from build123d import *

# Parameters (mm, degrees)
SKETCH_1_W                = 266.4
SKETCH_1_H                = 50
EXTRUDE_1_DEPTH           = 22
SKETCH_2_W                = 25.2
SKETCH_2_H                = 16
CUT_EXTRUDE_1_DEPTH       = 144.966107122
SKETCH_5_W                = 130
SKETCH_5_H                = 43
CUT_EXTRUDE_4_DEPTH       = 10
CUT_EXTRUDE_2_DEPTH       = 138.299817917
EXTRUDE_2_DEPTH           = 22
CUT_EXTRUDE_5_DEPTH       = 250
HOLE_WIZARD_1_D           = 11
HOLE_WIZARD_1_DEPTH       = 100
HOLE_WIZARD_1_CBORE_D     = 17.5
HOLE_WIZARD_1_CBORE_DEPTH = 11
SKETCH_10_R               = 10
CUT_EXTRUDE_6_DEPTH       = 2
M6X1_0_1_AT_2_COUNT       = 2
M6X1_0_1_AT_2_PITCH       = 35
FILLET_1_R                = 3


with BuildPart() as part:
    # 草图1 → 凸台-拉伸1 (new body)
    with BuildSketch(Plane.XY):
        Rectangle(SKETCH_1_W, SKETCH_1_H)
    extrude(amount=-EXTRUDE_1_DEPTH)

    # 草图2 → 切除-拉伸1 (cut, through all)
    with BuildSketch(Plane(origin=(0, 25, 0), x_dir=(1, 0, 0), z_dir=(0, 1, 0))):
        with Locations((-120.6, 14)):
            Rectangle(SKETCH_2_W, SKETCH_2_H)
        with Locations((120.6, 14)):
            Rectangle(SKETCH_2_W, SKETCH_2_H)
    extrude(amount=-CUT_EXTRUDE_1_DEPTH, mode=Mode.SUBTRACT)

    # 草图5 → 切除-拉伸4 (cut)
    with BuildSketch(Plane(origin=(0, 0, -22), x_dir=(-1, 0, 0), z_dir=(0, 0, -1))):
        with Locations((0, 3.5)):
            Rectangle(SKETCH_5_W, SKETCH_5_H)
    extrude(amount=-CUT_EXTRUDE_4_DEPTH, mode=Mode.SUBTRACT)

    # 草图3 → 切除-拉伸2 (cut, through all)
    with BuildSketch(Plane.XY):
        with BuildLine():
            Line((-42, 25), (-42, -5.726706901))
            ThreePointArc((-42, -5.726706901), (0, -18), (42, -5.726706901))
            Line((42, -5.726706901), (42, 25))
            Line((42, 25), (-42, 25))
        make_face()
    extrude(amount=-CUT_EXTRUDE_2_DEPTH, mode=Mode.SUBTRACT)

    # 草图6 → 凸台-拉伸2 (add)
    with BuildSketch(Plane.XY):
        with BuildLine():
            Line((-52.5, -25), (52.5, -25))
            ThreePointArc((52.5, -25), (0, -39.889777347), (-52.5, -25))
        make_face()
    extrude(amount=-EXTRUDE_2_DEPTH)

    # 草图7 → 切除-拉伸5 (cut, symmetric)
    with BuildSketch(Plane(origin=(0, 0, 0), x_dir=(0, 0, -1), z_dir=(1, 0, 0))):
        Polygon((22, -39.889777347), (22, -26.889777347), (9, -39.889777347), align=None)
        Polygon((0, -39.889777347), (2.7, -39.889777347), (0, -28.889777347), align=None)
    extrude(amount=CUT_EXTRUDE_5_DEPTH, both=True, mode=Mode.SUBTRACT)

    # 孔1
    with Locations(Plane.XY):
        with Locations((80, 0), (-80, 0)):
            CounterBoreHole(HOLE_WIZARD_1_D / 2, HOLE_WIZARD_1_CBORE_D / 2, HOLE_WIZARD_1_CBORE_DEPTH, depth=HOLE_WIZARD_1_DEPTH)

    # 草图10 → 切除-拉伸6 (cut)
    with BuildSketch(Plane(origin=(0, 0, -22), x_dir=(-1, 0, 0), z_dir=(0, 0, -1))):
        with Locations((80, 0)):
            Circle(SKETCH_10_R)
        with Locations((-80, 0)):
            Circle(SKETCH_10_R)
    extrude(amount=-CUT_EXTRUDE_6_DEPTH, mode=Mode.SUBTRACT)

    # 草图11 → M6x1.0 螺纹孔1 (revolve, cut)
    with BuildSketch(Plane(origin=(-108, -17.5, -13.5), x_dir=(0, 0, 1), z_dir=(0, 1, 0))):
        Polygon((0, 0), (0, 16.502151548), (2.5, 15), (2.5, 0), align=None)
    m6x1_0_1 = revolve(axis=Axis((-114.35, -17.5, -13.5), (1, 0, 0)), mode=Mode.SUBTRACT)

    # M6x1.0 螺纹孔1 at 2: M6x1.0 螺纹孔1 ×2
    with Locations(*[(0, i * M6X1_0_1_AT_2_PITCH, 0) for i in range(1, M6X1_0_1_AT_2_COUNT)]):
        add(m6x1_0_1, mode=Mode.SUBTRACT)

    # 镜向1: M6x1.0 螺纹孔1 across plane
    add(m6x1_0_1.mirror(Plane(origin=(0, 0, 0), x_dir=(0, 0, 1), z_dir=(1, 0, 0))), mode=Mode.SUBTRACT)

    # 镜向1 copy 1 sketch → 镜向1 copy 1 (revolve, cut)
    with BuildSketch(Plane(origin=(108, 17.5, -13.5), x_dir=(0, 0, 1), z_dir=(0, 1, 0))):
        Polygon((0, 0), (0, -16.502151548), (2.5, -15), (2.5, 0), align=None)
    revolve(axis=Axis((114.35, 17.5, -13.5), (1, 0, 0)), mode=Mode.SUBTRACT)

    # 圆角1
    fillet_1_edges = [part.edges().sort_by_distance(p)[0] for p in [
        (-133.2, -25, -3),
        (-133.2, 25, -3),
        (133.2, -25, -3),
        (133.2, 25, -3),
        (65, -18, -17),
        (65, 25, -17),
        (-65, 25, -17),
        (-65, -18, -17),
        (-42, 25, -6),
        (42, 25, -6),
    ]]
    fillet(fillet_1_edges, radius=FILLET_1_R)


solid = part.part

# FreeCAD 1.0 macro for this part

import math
import FreeCAD as App
import Part
import Sketcher
from FreeCAD import Vector
Q = App.Units.Quantity


def edges_at(feature, points):
    """Names of the edges that pass closest to the given points."""
    edges = feature.Shape.Edges
    near = lambda p: min(range(len(edges)), key=lambda i: edges[i].distToShape(Part.Vertex(*p))[0])
    return sorted({f"Edge{near(p) + 1}" for p in points})

doc = App.newDocument("Part")
params = doc.addObject("Spreadsheet::Sheet", "Params")
for row, (alias, value) in enumerate([
    ("sketch1_height", "50 mm"),
    ("sketch1_width", "266.4 mm"),
    ("pad1_length", "22 mm"),
    ("sketch2_height", "16 mm"),
    ("sketch2_width", "25.2 mm"),
    ("sketch3_width", "130 mm"),
    ("sketch3_height", "43 mm"),
    ("pocket2_length", "10 mm"),
    ("sketch4_radius", "78 mm"),
    ("sketch4_width", "84 mm"),
    ("sketch5_radius", "100 mm"),
    ("sketch5_width", "105 mm"),
    ("pad2_length", "22 mm"),
    ("sketch6_width", "13 mm"),
    ("sketch6_width2", "11 mm"),
    ("sketch6_height", "2.7 mm"),
    ("pocket4_length", "500 mm"),
    ("sketch7_diameter", "11 mm"),
    ("hole_diameter", "11 mm"),
    ("hole_depth", "100 mm"),
    ("hole_cbore_diameter", "17.5 mm"),
    ("hole_cbore_depth", "11 mm"),
    ("sketch8_diameter", "20 mm"),
    ("pocket5_length", "2 mm"),
    ("sketch9_width", "15 mm"),
    ("sketch9_height", "2.5 mm"),
    ("groove_angle", "360 deg"),
    ("linearpattern_pitch", "35 mm"),
    ("sketch10_width", "15 mm"),
    ("sketch10_height", "2.5 mm"),
    ("groove2_angle", "360 deg"),
    ("fillet_radius", "3 mm"),
], start=1):
    params.set(f"A{row}", alias)
    params.set(f"B{row}", "=" + value)
    params.setAlias(f"B{row}", alias)

body = doc.addObject("PartDesign::Body", "Body")

# Sketch on XY plane
sketch1 = body.newObject("Sketcher::SketchObject", "Sketch")
sketch1.AttachmentSupport = (doc.getObject("XY_Plane"), [""])
sketch1.MapMode = "FlatFace"
sketch1.addGeometry(Part.LineSegment(Vector(-133, 25, 0), Vector(-133, -25, 0)), False)
sketch1.addGeometry(Part.LineSegment(Vector(-133, -25, 0), Vector(133, -25, 0)), False)
sketch1.addGeometry(Part.LineSegment(Vector(133, -25, 0), Vector(133, 25, 0)), False)
sketch1.addGeometry(Part.LineSegment(Vector(133, 25, 0), Vector(-133, 25, 0)), False)
sketch1.addConstraint(Sketcher.Constraint("Coincident", 0, 2, 1, 1))
sketch1.addConstraint(Sketcher.Constraint("Coincident", 1, 2, 2, 1))
sketch1.addConstraint(Sketcher.Constraint("Coincident", 2, 2, 3, 1))
sketch1.addConstraint(Sketcher.Constraint("Coincident", 3, 2, 0, 1))
sketch1.addConstraint(Sketcher.Constraint("Vertical", 0))
sketch1.addConstraint(Sketcher.Constraint("Horizontal", 1))
sketch1.addConstraint(Sketcher.Constraint("Vertical", 2))
sketch1.addConstraint(Sketcher.Constraint("Horizontal", 3))
sketch1.addConstraint(Sketcher.Constraint("Symmetric", 0, 2, 2, 2, -1, 1))
sketch1.addConstraint(Sketcher.Constraint("DistanceY", 0, 2, 0, 1, 50.0))
sketch1.addConstraint(Sketcher.Constraint("DistanceX", 1, 1, 1, 2, 266.4))
sketch1.setExpression("Constraints[9]", "Params.sketch1_height")
sketch1.setExpression("Constraints[10]", "Params.sketch1_width")
pad1 = body.newObject("PartDesign::Pad", "Pad")
pad1.Profile = sketch1
pad1.setExpression("Length", "Params.pad1_length")
pad1.Reversed = True

# Sketch on XZ plane
sketch2 = body.newObject("Sketcher::SketchObject", "Sketch001")
sketch2.AttachmentSupport = (doc.getObject("XZ_Plane"), [""])
sketch2.MapMode = "FlatFace"
sketch2.AttachmentOffset = App.Placement(Vector(0, 0, -25), App.Rotation())
sketch2.addGeometry(Part.LineSegment(Vector(-133, -22, 0), Vector(-133, -6, 0)), False)
sketch2.addGeometry(Part.LineSegment(Vector(-133, -6, 0), Vector(-108, -6, 0)), False)
sketch2.addGeometry(Part.LineSegment(Vector(-108, -6, 0), Vector(-108, -22, 0)), False)
sketch2.addGeometry(Part.LineSegment(Vector(-108, -22, 0), Vector(-133, -22, 0)), False)
sketch2.addGeometry(Part.LineSegment(Vector(108, -22, 0), Vector(108, -6, 0)), False)
sketch2.addGeometry(Part.LineSegment(Vector(108, -6, 0), Vector(133, -6, 0)), False)
sketch2.addGeometry(Part.LineSegment(Vector(133, -6, 0), Vector(133, -22, 0)), False)
sketch2.addGeometry(Part.LineSegment(Vector(133, -22, 0), Vector(108, -22, 0)), False)
sketch2.addConstraint(Sketcher.Constraint("Coincident", 0, 2, 1, 1))
sketch2.addConstraint(Sketcher.Constraint("Coincident", 1, 2, 2, 1))
sketch2.addConstraint(Sketcher.Constraint("Coincident", 2, 2, 3, 1))
sketch2.addConstraint(Sketcher.Constraint("Coincident", 3, 2, 0, 1))
sketch2.addConstraint(Sketcher.Constraint("Coincident", 4, 2, 5, 1))
sketch2.addConstraint(Sketcher.Constraint("Coincident", 5, 2, 6, 1))
sketch2.addConstraint(Sketcher.Constraint("Coincident", 6, 2, 7, 1))
sketch2.addConstraint(Sketcher.Constraint("Coincident", 7, 2, 4, 1))
sketch2.addConstraint(Sketcher.Constraint("Vertical", 0))
sketch2.addConstraint(Sketcher.Constraint("Horizontal", 1))
sketch2.addConstraint(Sketcher.Constraint("Vertical", 2))
sketch2.addConstraint(Sketcher.Constraint("Horizontal", 3))
sketch2.addConstraint(Sketcher.Constraint("Vertical", 4))
sketch2.addConstraint(Sketcher.Constraint("Horizontal", 5))
sketch2.addConstraint(Sketcher.Constraint("Vertical", 6))
sketch2.addConstraint(Sketcher.Constraint("Horizontal", 7))
sketch2.addConstraint(Sketcher.Constraint("Symmetric", 1, 2, 4, 2, -2))
sketch2.addConstraint(Sketcher.Constraint("Symmetric", 3, 2, 6, 2, -2))
sketch2.addConstraint(Sketcher.Constraint("DistanceY", 0, 1, 0, 2, 16.0))
sketch2.addConstraint(Sketcher.Constraint("DistanceX", 1, 1, 1, 2, 25.2))
sketch2.addConstraint(Sketcher.Constraint("DistanceY", 0, 2, -1, 1, 6.0))
sketch2.addConstraint(Sketcher.Constraint("DistanceX", 1, 2, -1, 1, 108.0))
sketch2.setExpression("Constraints[18]", "Params.sketch2_height")
sketch2.setExpression("Constraints[19]", "Params.sketch2_width")
pocket1 = body.newObject("PartDesign::Pocket", "Pocket")
pocket1.Profile = sketch2
pocket1.Type = "ThroughAll"
pocket1.Reversed = True

# Sketch on XY plane
sketch3 = body.newObject("Sketcher::SketchObject", "Sketch002")
sketch3.AttachmentSupport = (doc.getObject("XY_Plane"), [""])
sketch3.MapMode = "FlatFace"
sketch3.AttachmentOffset = App.Placement(Vector(0, 0, -22), App.Rotation())
sketch3.addGeometry(Part.LineSegment(Vector(65, 25, 0), Vector(65, -18, 0)), False)
sketch3.addGeometry(Part.LineSegment(Vector(65, -18, 0), Vector(-65, -18, 0)), False)
sketch3.addGeometry(Part.LineSegment(Vector(-65, -18, 0), Vector(-65, 25, 0)), False)
sketch3.addGeometry(Part.LineSegment(Vector(-65, 25, 0), Vector(65, 25, 0)), False)
sketch3.addConstraint(Sketcher.Constraint("Coincident", 0, 2, 1, 1))
sketch3.addConstraint(Sketcher.Constraint("Coincident", 1, 2, 2, 1))
sketch3.addConstraint(Sketcher.Constraint("Coincident", 2, 2, 3, 1))
sketch3.addConstraint(Sketcher.Constraint("Coincident", 3, 2, 0, 1))
sketch3.addConstraint(Sketcher.Constraint("Vertical", 0))
sketch3.addConstraint(Sketcher.Constraint("Horizontal", 1))
sketch3.addConstraint(Sketcher.Constraint("Vertical", 2))
sketch3.addConstraint(Sketcher.Constraint("Horizontal", 3))
sketch3.addConstraint(Sketcher.Constraint("DistanceX", 1, 2, 1, 1, 130.0))
sketch3.addConstraint(Sketcher.Constraint("DistanceY", 0, 2, 0, 1, 43.0))
sketch3.addConstraint(Sketcher.Constraint("DistanceX", -1, 1, 0, 2, 65.0))
sketch3.addConstraint(Sketcher.Constraint("DistanceY", 0, 2, -1, 1, 18.0))
sketch3.setExpression("Constraints[8]", "Params.sketch3_width")
sketch3.setExpression("Constraints[9]", "Params.sketch3_height")
pocket2 = body.newObject("PartDesign::Pocket", "Pocket001")
pocket2.Profile = sketch3
pocket2.setExpression("Length", "Params.pocket2_length")
pocket2.Reversed = True

# Sketch on XY plane
sketch4 = body.newObject("Sketcher::SketchObject", "Sketch003")
sketch4.AttachmentSupport = (doc.getObject("XY_Plane"), [""])
sketch4.MapMode = "FlatFace"
sketch4.addGeometry(Part.LineSegment(Vector(-42, 25, 0), Vector(-42, -6, 0)), False)
sketch4.addGeometry(Part.ArcOfCircle(Part.Circle(Vector(0, 60, 0), Vector(0, 0, 1), 78), math.radians(-123), math.radians(-57)), False)
sketch4.addGeometry(Part.LineSegment(Vector(42, -6, 0), Vector(42, 25, 0)), False)
sketch4.addGeometry(Part.LineSegment(Vector(42, 25, 0), Vector(-42, 25, 0)), False)
sketch4.addConstraint(Sketcher.Constraint("Coincident", 0, 2, 1, 1))
sketch4.addConstraint(Sketcher.Constraint("Coincident", 1, 2, 2, 1))
sketch4.addConstraint(Sketcher.Constraint("Coincident", 2, 2, 3, 1))
sketch4.addConstraint(Sketcher.Constraint("Coincident", 3, 2, 0, 1))
sketch4.addConstraint(Sketcher.Constraint("Vertical", 0))
sketch4.addConstraint(Sketcher.Constraint("Vertical", 2))
sketch4.addConstraint(Sketcher.Constraint("Horizontal", 3))
sketch4.addConstraint(Sketcher.Constraint("Symmetric", 0, 2, 1, 2, -2))
sketch4.addConstraint(Sketcher.Constraint("Radius", 1, 78.0))
sketch4.addConstraint(Sketcher.Constraint("DistanceX", 3, 2, 3, 1, 84.0))
sketch4.addConstraint(Sketcher.Constraint("DistanceY", -1, 1, 1, 3, 60.0))
sketch4.addConstraint(Sketcher.Constraint("DistanceY", -1, 1, 2, 2, 25.0))
sketch4.setExpression("Constraints[8]", "Params.sketch4_radius")
sketch4.setExpression("Constraints[9]", "Params.sketch4_width")
pocket3 = body.newObject("PartDesign::Pocket", "Pocket002")
pocket3.Profile = sketch4
pocket3.Type = "ThroughAll"

# Sketch on XY plane
sketch5 = body.newObject("Sketcher::SketchObject", "Sketch004")
sketch5.AttachmentSupport = (doc.getObject("XY_Plane"), [""])
sketch5.MapMode = "FlatFace"
sketch5.addGeometry(Part.LineSegment(Vector(52, -25, 0), Vector(-52, -25, 0)), False)
sketch5.addGeometry(Part.ArcOfCircle(Part.Circle(Vector(0, 60, 0), Vector(0, 0, 1), 100), math.radians(-122), math.radians(-58)), False)
sketch5.addConstraint(Sketcher.Constraint("Coincident", 0, 1, 1, 2))
sketch5.addConstraint(Sketcher.Constraint("Coincident", 1, 1, 0, 2))
sketch5.addConstraint(Sketcher.Constraint("Horizontal", 0))
sketch5.addConstraint(Sketcher.Constraint("PointOnObject", 1, 3, -2))
sketch5.addConstraint(Sketcher.Constraint("Radius", 1, 100.0))
sketch5.addConstraint(Sketcher.Constraint("DistanceX", 0, 2, 0, 1, 105.0))
sketch5.addConstraint(Sketcher.Constraint("DistanceY", 0, 1, -1, 1, 25.0))
sketch5.setExpression("Constraints[4]", "Params.sketch5_radius")
sketch5.setExpression("Constraints[5]", "Params.sketch5_width")
pad2 = body.newObject("PartDesign::Pad", "Pad001")
pad2.Profile = sketch5
pad2.setExpression("Length", "Params.pad2_length")
pad2.Reversed = True

# Sketch on YZ plane
sketch6 = body.newObject("Sketcher::SketchObject", "Sketch005")
sketch6.AttachmentSupport = (doc.getObject("YZ_Plane"), [""])
sketch6.MapMode = "FlatFace"
sketch6.addGeometry(Part.LineSegment(Vector(-39.9, -22, 0), Vector(-26.9, -22, 0)), False)
sketch6.addGeometry(Part.LineSegment(Vector(-26.9, -22, 0), Vector(-39.9, -9, 0)), False)
sketch6.addGeometry(Part.LineSegment(Vector(-39.9, -9, 0), Vector(-39.9, -22, 0)), False)
sketch6.addGeometry(Part.LineSegment(Vector(-39.9, 0, 0), Vector(-39.9, -2.7, 0)), False)
sketch6.addGeometry(Part.LineSegment(Vector(-39.9, -2.7, 0), Vector(-28.9, 0, 0)), False)
sketch6.addGeometry(Part.LineSegment(Vector(-28.9, 0, 0), Vector(-39.9, 0, 0)), False)
sketch6.addConstraint(Sketcher.Constraint("Coincident", 0, 2, 1, 1))
sketch6.addConstraint(Sketcher.Constraint("Coincident", 1, 2, 2, 1))
sketch6.addConstraint(Sketcher.Constraint("Coincident", 2, 2, 0, 1))
sketch6.addConstraint(Sketcher.Constraint("Coincident", 3, 2, 4, 1))
sketch6.addConstraint(Sketcher.Constraint("Coincident", 4, 2, 5, 1))
sketch6.addConstraint(Sketcher.Constraint("Coincident", 5, 2, 3, 1))
sketch6.addConstraint(Sketcher.Constraint("Horizontal", 0))
sketch6.addConstraint(Sketcher.Constraint("Vertical", 2))
sketch6.addConstraint(Sketcher.Constraint("Vertical", 3))
sketch6.addConstraint(Sketcher.Constraint("Horizontal", 5))
sketch6.addConstraint(Sketcher.Constraint("PointOnObject", 4, 2, -1))
sketch6.addConstraint(Sketcher.Constraint("Vertical", 2, 2, 3, 2))
sketch6.addConstraint(Sketcher.Constraint("Equal", 0, 2))
sketch6.addConstraint(Sketcher.Constraint("DistanceX", 0, 1, 0, 2, 13.0))
sketch6.addConstraint(Sketcher.Constraint("DistanceX", 5, 2, 5, 1, 11.0))
sketch6.addConstraint(Sketcher.Constraint("DistanceY", 3, 2, 3, 1, 2.7))
sketch6.addConstraint(Sketcher.Constraint("DistanceY", 0, 2, -1, 1, 22.0))
sketch6.addConstraint(Sketcher.Constraint("DistanceX", 0, 2, -1, 1, 26.889777))
sketch6.setExpression("Constraints[13]", "Params.sketch6_width")
sketch6.setExpression("Constraints[14]", "Params.sketch6_width2")
sketch6.setExpression("Constraints[15]", "Params.sketch6_height")
pocket4 = body.newObject("PartDesign::Pocket", "Pocket003")
pocket4.Profile = sketch6
pocket4.setExpression("Length", "Params.pocket4_length")
pocket4.Midplane = True

# Sketch on XY plane
sketch7 = body.newObject("Sketcher::SketchObject", "Sketch006")
sketch7.AttachmentSupport = (doc.getObject("XY_Plane"), [""])
sketch7.MapMode = "FlatFace"
sketch7.addGeometry(Part.Circle(Vector(80, 0, 0), Vector(0, 0, 1), 6), False)
sketch7.addGeometry(Part.Circle(Vector(-80, 0, 0), Vector(0, 0, 1), 6), False)
sketch7.addConstraint(Sketcher.Constraint("Equal", 0, 1))
sketch7.addConstraint(Sketcher.Constraint("Symmetric", 0, 3, 1, 3, -1, 1))
sketch7.addConstraint(Sketcher.Constraint("PointOnObject", 0, 3, -1))
sketch7.addConstraint(Sketcher.Constraint("Diameter", 0, 11.0))
sketch7.addConstraint(Sketcher.Constraint("DistanceX", -1, 1, 0, 3, 80.0))
sketch7.setExpression("Constraints[3]", "Params.sketch7_diameter")
doc.recompute()
hole = body.newObject("PartDesign::Hole", "Hole")
hole.Profile = sketch7
hole.ThreadType = "None"
hole.setExpression("Diameter", "Params.hole_diameter")
hole.DepthType = "Dimension"
hole.setExpression("Depth", "Params.hole_depth")
hole.DrillPoint = "Flat"
hole.HoleCutType = "Counterbore"
hole.setExpression("HoleCutDiameter", "Params.hole_cbore_diameter")
hole.setExpression("HoleCutDepth", "Params.hole_cbore_depth")

# Sketch on XY plane
sketch8 = body.newObject("Sketcher::SketchObject", "Sketch007")
sketch8.AttachmentSupport = (doc.getObject("XY_Plane"), [""])
sketch8.MapMode = "FlatFace"
sketch8.AttachmentOffset = App.Placement(Vector(0, 0, -22), App.Rotation())
sketch8.addGeometry(Part.Circle(Vector(-80, 0, 0), Vector(0, 0, 1), 10), False)
sketch8.addGeometry(Part.Circle(Vector(80, 0, 0), Vector(0, 0, 1), 10), False)
sketch8.addConstraint(Sketcher.Constraint("Equal", 0, 1))
sketch8.addConstraint(Sketcher.Constraint("Symmetric", 0, 3, 1, 3, -1, 1))
sketch8.addConstraint(Sketcher.Constraint("PointOnObject", 0, 3, -1))
sketch8.addConstraint(Sketcher.Constraint("Diameter", 0, 20.0))
sketch8.addConstraint(Sketcher.Constraint("DistanceX", 0, 3, -1, 1, 80.0))
sketch8.setExpression("Constraints[3]", "Params.sketch8_diameter")
pocket5 = body.newObject("PartDesign::Pocket", "Pocket004")
pocket5.Profile = sketch8
pocket5.setExpression("Length", "Params.pocket5_length")
pocket5.Reversed = True

# Sketch on XZ plane
sketch9 = body.newObject("Sketcher::SketchObject", "Sketch008")
sketch9.AttachmentSupport = (doc.getObject("XZ_Plane"), [""])
sketch9.MapMode = "FlatFace"
sketch9.AttachmentOffset = App.Placement(Vector(0, 0, 17.5), App.Rotation())
sketch9.addGeometry(Part.LineSegment(Vector(-91.5, -13.5, 0), Vector(-108, -13.5, 0)), False)
sketch9.addGeometry(Part.LineSegment(Vector(-108, -13.5, 0), Vector(-108, -11, 0)), False)
sketch9.addGeometry(Part.LineSegment(Vector(-108, -11, 0), Vector(-93, -11, 0)), False)
sketch9.addGeometry(Part.LineSegment(Vector(-93, -11, 0), Vector(-91.5, -13.5, 0)), False)
sketch9.addGeometry(Part.LineSegment(Vector(-108, -13.5, 0), Vector(-91.5, -13.5, 0)), True)  # axis
sketch9.addConstraint(Sketcher.Constraint("Coincident", 0, 2, 1, 1))
sketch9.addConstraint(Sketcher.Constraint("Coincident", 1, 2, 2, 1))
sketch9.addConstraint(Sketcher.Constraint("Coincident", 2, 2, 3, 1))
sketch9.addConstraint(Sketcher.Constraint("Coincident", 3, 2, 0, 1))
sketch9.addConstraint(Sketcher.Constraint("Horizontal", 0))
sketch9.addConstraint(Sketcher.Constraint("Vertical", 1))
sketch9.addConstraint(Sketcher.Constraint("Horizontal", 2))
sketch9.addConstraint(Sketcher.Constraint("Horizontal", 4))
sketch9.addConstraint(Sketcher.Constraint("Coincident", 4, 1, 0, 2))
sketch9.addConstraint(Sketcher.Constraint("Equal", 0, 4))
sketch9.addConstraint(Sketcher.Constraint("DistanceX", 2, 1, 2, 2, 15.0))
sketch9.addConstraint(Sketcher.Constraint("Angle", 3, Q("-59 deg")))
sketch9.addConstraint(Sketcher.Constraint("DistanceY", 1, 1, 1, 2, 2.5))
sketch9.addConstraint(Sketcher.Constraint("DistanceX", 0, 2, -1, 1, 108.0))
sketch9.addConstraint(Sketcher.Constraint("DistanceY", 1, 2, -1, 1, 11.0))
sketch9.setExpression("Constraints[10]", "Params.sketch9_width")
sketch9.setExpression("Constraints[12]", "Params.sketch9_height")
groove = body.newObject("PartDesign::Groove", "Groove")
groove.Profile = sketch9
groove.ReferenceAxis = (sketch9, ["Axis0"])
groove.setExpression("Angle", "Params.groove_angle")
doc.recompute()

linearpattern = body.newObject("PartDesign::LinearPattern", "LinearPattern")
linearpattern.Originals = [groove]
linearpattern.Direction = (doc.getObject("Y_Axis"), [""])
linearpattern.Mode = "offset"
linearpattern.setExpression("Offset", "Params.linearpattern_pitch")
linearpattern.Occurrences = 2
body.Tip = linearpattern
doc.recompute()

mirrored = body.newObject("PartDesign::Mirrored", "Mirrored")
mirrored.Originals = [groove]
mirrored.MirrorPlane = (doc.getObject("YZ_Plane"), [""])
body.Tip = mirrored

# Sketch on XZ plane
sketch10 = body.newObject("Sketcher::SketchObject", "Sketch009")
sketch10.AttachmentSupport = (doc.getObject("XZ_Plane"), [""])
sketch10.MapMode = "FlatFace"
sketch10.AttachmentOffset = App.Placement(Vector(0, 0, -17.5), App.Rotation())
sketch10.addGeometry(Part.LineSegment(Vector(108, -13.5, 0), Vector(91.5, -13.5, 0)), False)
sketch10.addGeometry(Part.LineSegment(Vector(91.5, -13.5, 0), Vector(93, -11, 0)), False)
sketch10.addGeometry(Part.LineSegment(Vector(93, -11, 0), Vector(108, -11, 0)), False)
sketch10.addGeometry(Part.LineSegment(Vector(108, -11, 0), Vector(108, -13.5, 0)), False)
sketch10.addGeometry(Part.LineSegment(Vector(91.5, -13.5, 0), Vector(108, -13.5, 0)), True)  # axis
sketch10.addConstraint(Sketcher.Constraint("Coincident", 0, 2, 1, 1))
sketch10.addConstraint(Sketcher.Constraint("Coincident", 1, 2, 2, 1))
sketch10.addConstraint(Sketcher.Constraint("Coincident", 2, 2, 3, 1))
sketch10.addConstraint(Sketcher.Constraint("Coincident", 3, 2, 0, 1))
sketch10.addConstraint(Sketcher.Constraint("Horizontal", 0))
sketch10.addConstraint(Sketcher.Constraint("Horizontal", 2))
sketch10.addConstraint(Sketcher.Constraint("Vertical", 3))
sketch10.addConstraint(Sketcher.Constraint("Horizontal", 4))
sketch10.addConstraint(Sketcher.Constraint("Coincident", 4, 1, 0, 2))
sketch10.addConstraint(Sketcher.Constraint("Vertical", 2, 2, 4, 2))
sketch10.addConstraint(Sketcher.Constraint("DistanceX", 2, 1, 2, 2, 15.0))
sketch10.addConstraint(Sketcher.Constraint("Angle", 1, Q("59 deg")))
sketch10.addConstraint(Sketcher.Constraint("DistanceY", 3, 2, 3, 1, 2.5))
sketch10.addConstraint(Sketcher.Constraint("DistanceX", -1, 1, 1, 2, 93.0))
sketch10.addConstraint(Sketcher.Constraint("DistanceY", 1, 2, -1, 1, 11.0))
sketch10.setExpression("Constraints[10]", "Params.sketch10_width")
sketch10.setExpression("Constraints[12]", "Params.sketch10_height")
groove2 = body.newObject("PartDesign::Groove", "Groove001")
groove2.Profile = sketch10
groove2.ReferenceAxis = (sketch10, ["Axis0"])
groove2.setExpression("Angle", "Params.groove2_angle")
doc.recompute()

fillet = body.newObject("PartDesign::Fillet", "Fillet")
fillet.Base = (groove2, edges_at(groove2, [
    (-133.2, -25, -3),
    (-133.2, 25, -3),
    (133.2, -25, -3),
    (133.2, 25, -3),
    (65, -18, -17),
    (65, 25, -17),
    (-65, 25, -17),
    (-65, -18, -17),
    (-42, 25, -6),
    (42, 25, -6),
]))
fillet.setExpression("Radius", "Params.fillet_radius")

doc.recompute()
